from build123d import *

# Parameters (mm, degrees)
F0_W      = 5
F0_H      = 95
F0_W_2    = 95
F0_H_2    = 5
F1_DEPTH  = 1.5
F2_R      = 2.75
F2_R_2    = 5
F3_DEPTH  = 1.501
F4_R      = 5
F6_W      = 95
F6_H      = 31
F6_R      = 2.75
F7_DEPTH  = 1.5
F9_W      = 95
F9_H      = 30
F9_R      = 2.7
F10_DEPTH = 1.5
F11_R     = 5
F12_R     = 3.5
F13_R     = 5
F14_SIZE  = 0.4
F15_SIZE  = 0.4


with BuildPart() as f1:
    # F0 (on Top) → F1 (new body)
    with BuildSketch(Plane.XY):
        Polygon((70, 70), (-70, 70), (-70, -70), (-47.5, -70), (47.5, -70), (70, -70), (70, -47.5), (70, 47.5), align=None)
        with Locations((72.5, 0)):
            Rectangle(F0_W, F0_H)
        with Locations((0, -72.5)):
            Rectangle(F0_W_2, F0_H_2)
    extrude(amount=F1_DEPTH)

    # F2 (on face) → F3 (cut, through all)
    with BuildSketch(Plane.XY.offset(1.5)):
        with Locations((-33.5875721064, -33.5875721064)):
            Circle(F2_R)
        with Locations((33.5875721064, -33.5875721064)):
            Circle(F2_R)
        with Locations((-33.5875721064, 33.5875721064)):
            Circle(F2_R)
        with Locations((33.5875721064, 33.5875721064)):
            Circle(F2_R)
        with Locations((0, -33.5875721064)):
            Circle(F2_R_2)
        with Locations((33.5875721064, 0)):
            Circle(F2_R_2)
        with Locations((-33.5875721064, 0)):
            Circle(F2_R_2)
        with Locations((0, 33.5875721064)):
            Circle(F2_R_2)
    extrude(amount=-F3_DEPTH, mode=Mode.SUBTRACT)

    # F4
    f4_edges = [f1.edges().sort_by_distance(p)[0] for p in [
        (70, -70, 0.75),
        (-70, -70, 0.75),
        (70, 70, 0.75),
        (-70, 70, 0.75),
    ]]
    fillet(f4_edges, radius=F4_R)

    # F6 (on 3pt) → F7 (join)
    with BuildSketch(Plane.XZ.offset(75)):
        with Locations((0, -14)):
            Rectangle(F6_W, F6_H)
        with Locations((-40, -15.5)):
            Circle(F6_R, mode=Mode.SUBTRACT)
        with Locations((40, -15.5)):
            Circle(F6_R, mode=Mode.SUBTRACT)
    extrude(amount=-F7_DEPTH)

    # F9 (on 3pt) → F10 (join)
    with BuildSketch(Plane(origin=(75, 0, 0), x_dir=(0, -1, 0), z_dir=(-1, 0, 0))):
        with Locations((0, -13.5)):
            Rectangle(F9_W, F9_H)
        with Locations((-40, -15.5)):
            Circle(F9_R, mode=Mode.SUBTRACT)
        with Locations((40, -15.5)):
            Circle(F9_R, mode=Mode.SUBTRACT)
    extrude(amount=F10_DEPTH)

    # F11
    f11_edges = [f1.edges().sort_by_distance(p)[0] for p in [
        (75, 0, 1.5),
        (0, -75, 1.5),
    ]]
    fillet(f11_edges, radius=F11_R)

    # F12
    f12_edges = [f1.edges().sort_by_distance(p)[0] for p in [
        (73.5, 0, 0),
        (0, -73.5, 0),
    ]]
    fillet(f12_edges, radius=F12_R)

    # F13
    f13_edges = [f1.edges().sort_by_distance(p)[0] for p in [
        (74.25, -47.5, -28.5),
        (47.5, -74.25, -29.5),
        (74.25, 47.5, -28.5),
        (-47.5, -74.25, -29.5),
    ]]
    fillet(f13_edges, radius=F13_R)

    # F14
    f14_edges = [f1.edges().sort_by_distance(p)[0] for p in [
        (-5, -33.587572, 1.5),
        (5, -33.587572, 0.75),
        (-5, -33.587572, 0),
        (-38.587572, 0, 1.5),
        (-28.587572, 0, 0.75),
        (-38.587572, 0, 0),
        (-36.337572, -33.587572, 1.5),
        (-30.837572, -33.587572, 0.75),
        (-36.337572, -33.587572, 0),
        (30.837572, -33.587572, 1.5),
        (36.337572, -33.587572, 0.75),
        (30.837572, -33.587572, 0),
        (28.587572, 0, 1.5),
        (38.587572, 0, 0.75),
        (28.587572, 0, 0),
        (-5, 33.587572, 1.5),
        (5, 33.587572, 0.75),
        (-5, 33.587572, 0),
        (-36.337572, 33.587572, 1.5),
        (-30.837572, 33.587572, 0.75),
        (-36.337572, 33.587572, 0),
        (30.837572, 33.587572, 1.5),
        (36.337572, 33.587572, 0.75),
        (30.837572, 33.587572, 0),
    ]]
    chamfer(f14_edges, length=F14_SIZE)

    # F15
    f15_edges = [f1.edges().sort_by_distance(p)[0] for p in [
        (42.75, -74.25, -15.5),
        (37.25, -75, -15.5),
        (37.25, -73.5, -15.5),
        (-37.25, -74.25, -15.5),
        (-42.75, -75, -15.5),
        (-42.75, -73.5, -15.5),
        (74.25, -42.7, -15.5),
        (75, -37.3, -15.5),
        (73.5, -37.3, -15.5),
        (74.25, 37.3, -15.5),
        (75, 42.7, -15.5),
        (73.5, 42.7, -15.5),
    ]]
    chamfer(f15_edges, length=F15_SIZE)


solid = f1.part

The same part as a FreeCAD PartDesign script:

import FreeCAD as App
import Part
import Sketcher

V = App.Vector


def edges_at(feature, points):
    """Names of the edges that pass closest to the given points."""
    edges = feature.Shape.Edges
    near = lambda p: min(range(len(edges)), key=lambda i: edges[i].distToShape(Part.Vertex(*p))[0])
    return sorted({f"Edge{near(p) + 1}" for p in points})

doc = App.newDocument("Part")
body = doc.addObject("PartDesign::Body", "Body")

sketch1 = body.newObject("Sketcher::SketchObject", "Sketch")
sketch1.AttachmentSupport = (doc.getObject("XY_Plane"), [""])
sketch1.MapMode = "FlatFace"
sketch1.addGeometry([
    Part.LineSegment(V(70, 70, 0), V(-70, 70, 0)),
    Part.LineSegment(V(-70, 70, 0), V(-70, -70, 0)),
    Part.LineSegment(V(-70, -70, 0), V(-47.5, -70, 0)),
    Part.LineSegment(V(-47.5, -70, 0), V(-47.5, -75, 0)),
    Part.LineSegment(V(-47.5, -75, 0), V(47.5, -75, 0)),
    Part.LineSegment(V(47.5, -75, 0), V(47.5, -70, 0)),
    Part.LineSegment(V(47.5, -70, 0), V(70, -70, 0)),
    Part.LineSegment(V(70, -70, 0), V(70, -47.5, 0)),
    Part.LineSegment(V(70, -47.5, 0), V(75, -47.5, 0)),
    Part.LineSegment(V(75, -47.5, 0), V(75, 47.5, 0)),
    Part.LineSegment(V(75, 47.5, 0), V(70, 47.5, 0)),
    Part.LineSegment(V(70, 47.5, 0), V(70, 70, 0)),
], False)
sketch1.addConstraint([
    Sketcher.Constraint("Coincident", 0, 2, 1, 1),
    Sketcher.Constraint("Coincident", 1, 2, 2, 1),
    Sketcher.Constraint("Coincident", 2, 2, 3, 1),
    Sketcher.Constraint("Coincident", 3, 2, 4, 1),
    Sketcher.Constraint("Coincident", 4, 2, 5, 1),
    Sketcher.Constraint("Coincident", 5, 2, 6, 1),
    Sketcher.Constraint("Coincident", 6, 2, 7, 1),
    Sketcher.Constraint("Coincident", 7, 2, 8, 1),
    Sketcher.Constraint("Coincident", 8, 2, 9, 1),
    Sketcher.Constraint("Coincident", 9, 2, 10, 1),
    Sketcher.Constraint("Coincident", 10, 2, 11, 1),
    Sketcher.Constraint("Coincident", 11, 2, 0, 1),
    Sketcher.Constraint("Horizontal", 0),
    Sketcher.Constraint("Vertical", 1),
    Sketcher.Constraint("Horizontal", 2),
    Sketcher.Constraint("Vertical", 3),
    Sketcher.Constraint("Horizontal", 4),
    Sketcher.Constraint("Vertical", 5),
    Sketcher.Constraint("Horizontal", 6),
    Sketcher.Constraint("Vertical", 7),
    Sketcher.Constraint("Horizontal", 8),
    Sketcher.Constraint("Vertical", 9),
    Sketcher.Constraint("Horizontal", 10),
    Sketcher.Constraint("Vertical", 11),
    Sketcher.Constraint("Symmetric", 0, 2, 6, 2, -1, 1),
    Sketcher.Constraint("Symmetric", 1, 2, 11, 2, -1, 1),
    Sketcher.Constraint("Equal", 2, 6),
    Sketcher.Constraint("Equal", 0, 1),
    Sketcher.Constraint("Equal", 10, 3),
    Sketcher.Constraint("Equal", 6, 7),
    Sketcher.Constraint("Equal", 4, 9),
    Sketcher.Constraint("DistanceX", 0, 2, 0, 1, 140.0),
    Sketcher.Constraint("DistanceX", 4, 1, 4, 2, 95.0),
    Sketcher.Constraint("DistanceX", 8, 1, 8, 2, 5.0),
])
pad1 = body.newObject("PartDesign::Pad", "Pad")
pad1.Profile = sketch1
pad1.Length = 1.5

sketch2 = body.newObject("Sketcher::SketchObject", "Sketch001")
sketch2.AttachmentSupport = (doc.getObject("XY_Plane"), [""])
sketch2.MapMode = "FlatFace"
sketch2.AttachmentOffset = App.Placement(V(0, 0, 1.5), App.Rotation())
sketch2.addGeometry([
    Part.Circle(V(-33.587572, -33.587572, 0), V(0, 0, 1), 2.75),
    Part.Circle(V(33.587572, -33.587572, 0), V(0, 0, 1), 2.75),
    Part.Circle(V(-33.587572, 33.587572, 0), V(0, 0, 1), 2.75),
    Part.Circle(V(33.587572, 33.587572, 0), V(0, 0, 1), 2.75),
    Part.Circle(V(0, -33.587572, 0), V(0, 0, 1), 5),
    Part.Circle(V(33.587572, 0, 0), V(0, 0, 1), 5),
    Part.Circle(V(-33.587572, 0, 0), V(0, 0, 1), 5),
    Part.Circle(V(0, 33.587572, 0), V(0, 0, 1), 5),
], False)
sketch2.addConstraint([
    Sketcher.Constraint("Equal", 0, 1),
    Sketcher.Constraint("Equal", 1, 2),
    Sketcher.Constraint("Equal", 2, 3),
    Sketcher.Constraint("Equal", 4, 5),
    Sketcher.Constraint("Equal", 5, 6),
    Sketcher.Constraint("Equal", 6, 7),
    Sketcher.Constraint("Symmetric", 1, 3, 2, 3, -1, 1),
    Sketcher.Constraint("Symmetric", 0, 3, 3, 3, -1, 1),
    Sketcher.Constraint("Symmetric", 5, 3, 6, 3, -1, 1),
    Sketcher.Constraint("Symmetric", 4, 3, 7, 3, -1, 1),
    Sketcher.Constraint("Symmetric", 0, 3, 1, 3, -2),
    Sketcher.Constraint("PointOnObject", 4, 3, -2),
    Sketcher.Constraint("PointOnObject", 5, 3, -1),
    Sketcher.Constraint("Horizontal", 1, 3, 4, 3),
    Sketcher.Constraint("Vertical", 3, 3, 5, 3),
    Sketcher.Constraint("Diameter", 4, 10.0),
    Sketcher.Constraint("Diameter", 0, 5.5),
    Sketcher.Constraint("DistanceX", 0, 3, -1, 1, 33.587572),
    Sketcher.Constraint("DistanceY", 0, 3, -1, 1, 33.587572),
])
pocket1 = body.newObject("PartDesign::Pocket", "Pocket")
pocket1.Profile = sketch2
pocket1.Type = "ThroughAll"
doc.recompute()

fillet = body.newObject("PartDesign::Fillet", "Fillet")
fillet.Base = (pocket1, edges_at(pocket1, [
    (70, -70, 0.75),
    (-70, -70, 0.75),
    (70, 70, 0.75),
    (-70, 70, 0.75),
]))
fillet.Radius = 5

sketch3 = body.newObject("Sketcher::SketchObject", "Sketch002")
sketch3.AttachmentSupport = (doc.getObject("XZ_Plane"), [""])
sketch3.MapMode = "FlatFace"
sketch3.AttachmentOffset = App.Placement(V(0, 0, 75), App.Rotation())
sketch3.addGeometry([
    Part.LineSegment(V(-47.5, 1.5, 0), V(-47.5, -29.5, 0)),
    Part.LineSegment(V(-47.5, -29.5, 0), V(47.5, -29.5, 0)),
    Part.LineSegment(V(47.5, -29.5, 0), V(47.5, 1.5, 0)),
    Part.LineSegment(V(47.5, 1.5, 0), V(-47.5, 1.5, 0)),
    Part.Circle(V(-40, -15.5, 0), V(0, 0, 1), 2.75),
    Part.Circle(V(40, -15.5, 0), V(0, 0, 1), 2.75),
], False)
sketch3.addConstraint([
    Sketcher.Constraint("Coincident", 0, 2, 1, 1),
    Sketcher.Constraint("Coincident", 1, 2, 2, 1),
    Sketcher.Constraint("Coincident", 2, 2, 3, 1),
    Sketcher.Constraint("Coincident", 3, 2, 0, 1),
    Sketcher.Constraint("Vertical", 0),
    Sketcher.Constraint("Horizontal", 1),
    Sketcher.Constraint("Vertical", 2),
    Sketcher.Constraint("Horizontal", 3),
    Sketcher.Constraint("Equal", 4, 5),
    Sketcher.Constraint("Symmetric", 4, 3, 5, 3, -2),
    Sketcher.Constraint("Diameter", 4, 5.5),
    Sketcher.Constraint("DistanceX", 1, 1, 1, 2, 95.0),
    Sketcher.Constraint("DistanceY", 0, 2, 0, 1, 31.0),
    Sketcher.Constraint("DistanceX", 4, 3, -1, 1, 40.0),
    Sketcher.Constraint("DistanceY", 0, 2, 4, 3, 14.0),
    Sketcher.Constraint("DistanceY", 4, 3, -1, 1, 15.5),
    Sketcher.Constraint("DistanceX", 0, 2, -1, 1, 47.5),
])
pad2 = body.newObject("PartDesign::Pad", "Pad001")
pad2.Profile = sketch3
pad2.Length = 1.5
pad2.Reversed = True

sketch4 = body.newObject("Sketcher::SketchObject", "Sketch003")
sketch4.AttachmentSupport = (doc.getObject("YZ_Plane"), [""])
sketch4.MapMode = "FlatFace"
sketch4.AttachmentOffset = App.Placement(V(0, 0, 75), App.Rotation())
sketch4.addGeometry([
    Part.LineSegment(V(47.5, 1.5, 0), V(47.5, -28.5, 0)),
    Part.LineSegment(V(47.5, -28.5, 0), V(-47.5, -28.5, 0)),
    Part.LineSegment(V(-47.5, -28.5, 0), V(-47.5, 1.5, 0)),
    Part.LineSegment(V(-47.5, 1.5, 0), V(47.5, 1.5, 0)),
    Part.Circle(V(40, -15.5, 0), V(0, 0, 1), 2.7),
    Part.Circle(V(-40, -15.5, 0), V(0, 0, 1), 2.7),
], False)
sketch4.addConstraint([
    Sketcher.Constraint("Coincident", 0, 2, 1, 1),
    Sketcher.Constraint("Coincident", 1, 2, 2, 1),
    Sketcher.Constraint("Coincident", 2, 2, 3, 1),
    Sketcher.Constraint("Coincident", 3, 2, 0, 1),
    Sketcher.Constraint("Vertical", 0),
    Sketcher.Constraint("Horizontal", 1),
    Sketcher.Constraint("Vertical", 2),
    Sketcher.Constraint("Horizontal", 3),
    Sketcher.Constraint("Equal", 4, 5),
    Sketcher.Constraint("Symmetric", 4, 3, 5, 3, -2),
    Sketcher.Constraint("Diameter", 4, 5.4),
    Sketcher.Constraint("DistanceX", 1, 2, 1, 1, 95.0),
    Sketcher.Constraint("DistanceY", 0, 2, 0, 1, 30.0),
    Sketcher.Constraint("DistanceX", -1, 1, 4, 3, 40.0),
    Sketcher.Constraint("DistanceY", 0, 2, 4, 3, 13.0),
    Sketcher.Constraint("DistanceY", 4, 3, -1, 1, 15.5),
    Sketcher.Constraint("DistanceX", -1, 1, 0, 2, 47.5),
])
pad3 = body.newObject("PartDesign::Pad", "Pad002")
pad3.Profile = sketch4
pad3.Length = 1.5
pad3.Reversed = True
doc.recompute()

fillet2 = body.newObject("PartDesign::Fillet", "Fillet001")
fillet2.Base = (pad3, edges_at(pad3, [(75, 0, 1.5), (0, -75, 1.5)]))
fillet2.Radius = 5
doc.recompute()

fillet3 = body.newObject("PartDesign::Fillet", "Fillet002")
fillet3.Base = (fillet2, edges_at(fillet2, [(73.5, 0, 0), (0, -73.5, 0)]))
fillet3.Radius = 3.5
doc.recompute()

fillet4 = body.newObject("PartDesign::Fillet", "Fillet003")
fillet4.Base = (fillet3, edges_at(fillet3, [
    (74.25, -47.5, -28.5),
    (47.5, -74.25, -29.5),
    (74.25, 47.5, -28.5),
    (-47.5, -74.25, -29.5),
]))
fillet4.Radius = 5
doc.recompute()

chamfer = body.newObject("PartDesign::Chamfer", "Chamfer")
chamfer.Base = (fillet4, edges_at(fillet4, [
    (-5, -33.588, 1.5),
    (5, -33.588, 0.75),
    (-5, -33.588, 0),
    (-38.588, 0, 1.5),
    (-28.588, 0, 0.75),
    (-38.588, 0, 0),
    (-36.338, -33.588, 1.5),
    (-30.838, -33.588, 0.75),
    (-36.338, -33.588, 0),
    (30.838, -33.588, 1.5),
    (36.338, -33.588, 0.75),
    (30.838, -33.588, 0),
    (28.588, 0, 1.5),
    (38.588, 0, 0.75),
    (28.588, 0, 0),
    (-5, 33.588, 1.5),
    (5, 33.588, 0.75),
    (-5, 33.588, 0),
    (-36.338, 33.588, 1.5),
    (-30.838, 33.588, 0.75),
    (-36.338, 33.588, 0),
    (30.838, 33.588, 1.5),
    (36.338, 33.588, 0.75),
    (30.838, 33.588, 0),
]))
chamfer.Size = 0.4
doc.recompute()

chamfer2 = body.newObject("PartDesign::Chamfer", "Chamfer001")
chamfer2.Base = (chamfer, edges_at(chamfer, [
    (42.75, -74.25, -15.5),
    (37.25, -75, -15.5),
    (37.25, -73.5, -15.5),
    (-37.25, -74.25, -15.5),
    (-42.75, -75, -15.5),
    (-42.75, -73.5, -15.5),
    (74.25, -42.7, -15.5),
    (75, -37.3, -15.5),
    (73.5, -37.3, -15.5),
    (74.25, 37.3, -15.5),
    (75, 42.7, -15.5),
    (73.5, 42.7, -15.5),
]))
chamfer2.Size = 0.4

doc.recompute()
